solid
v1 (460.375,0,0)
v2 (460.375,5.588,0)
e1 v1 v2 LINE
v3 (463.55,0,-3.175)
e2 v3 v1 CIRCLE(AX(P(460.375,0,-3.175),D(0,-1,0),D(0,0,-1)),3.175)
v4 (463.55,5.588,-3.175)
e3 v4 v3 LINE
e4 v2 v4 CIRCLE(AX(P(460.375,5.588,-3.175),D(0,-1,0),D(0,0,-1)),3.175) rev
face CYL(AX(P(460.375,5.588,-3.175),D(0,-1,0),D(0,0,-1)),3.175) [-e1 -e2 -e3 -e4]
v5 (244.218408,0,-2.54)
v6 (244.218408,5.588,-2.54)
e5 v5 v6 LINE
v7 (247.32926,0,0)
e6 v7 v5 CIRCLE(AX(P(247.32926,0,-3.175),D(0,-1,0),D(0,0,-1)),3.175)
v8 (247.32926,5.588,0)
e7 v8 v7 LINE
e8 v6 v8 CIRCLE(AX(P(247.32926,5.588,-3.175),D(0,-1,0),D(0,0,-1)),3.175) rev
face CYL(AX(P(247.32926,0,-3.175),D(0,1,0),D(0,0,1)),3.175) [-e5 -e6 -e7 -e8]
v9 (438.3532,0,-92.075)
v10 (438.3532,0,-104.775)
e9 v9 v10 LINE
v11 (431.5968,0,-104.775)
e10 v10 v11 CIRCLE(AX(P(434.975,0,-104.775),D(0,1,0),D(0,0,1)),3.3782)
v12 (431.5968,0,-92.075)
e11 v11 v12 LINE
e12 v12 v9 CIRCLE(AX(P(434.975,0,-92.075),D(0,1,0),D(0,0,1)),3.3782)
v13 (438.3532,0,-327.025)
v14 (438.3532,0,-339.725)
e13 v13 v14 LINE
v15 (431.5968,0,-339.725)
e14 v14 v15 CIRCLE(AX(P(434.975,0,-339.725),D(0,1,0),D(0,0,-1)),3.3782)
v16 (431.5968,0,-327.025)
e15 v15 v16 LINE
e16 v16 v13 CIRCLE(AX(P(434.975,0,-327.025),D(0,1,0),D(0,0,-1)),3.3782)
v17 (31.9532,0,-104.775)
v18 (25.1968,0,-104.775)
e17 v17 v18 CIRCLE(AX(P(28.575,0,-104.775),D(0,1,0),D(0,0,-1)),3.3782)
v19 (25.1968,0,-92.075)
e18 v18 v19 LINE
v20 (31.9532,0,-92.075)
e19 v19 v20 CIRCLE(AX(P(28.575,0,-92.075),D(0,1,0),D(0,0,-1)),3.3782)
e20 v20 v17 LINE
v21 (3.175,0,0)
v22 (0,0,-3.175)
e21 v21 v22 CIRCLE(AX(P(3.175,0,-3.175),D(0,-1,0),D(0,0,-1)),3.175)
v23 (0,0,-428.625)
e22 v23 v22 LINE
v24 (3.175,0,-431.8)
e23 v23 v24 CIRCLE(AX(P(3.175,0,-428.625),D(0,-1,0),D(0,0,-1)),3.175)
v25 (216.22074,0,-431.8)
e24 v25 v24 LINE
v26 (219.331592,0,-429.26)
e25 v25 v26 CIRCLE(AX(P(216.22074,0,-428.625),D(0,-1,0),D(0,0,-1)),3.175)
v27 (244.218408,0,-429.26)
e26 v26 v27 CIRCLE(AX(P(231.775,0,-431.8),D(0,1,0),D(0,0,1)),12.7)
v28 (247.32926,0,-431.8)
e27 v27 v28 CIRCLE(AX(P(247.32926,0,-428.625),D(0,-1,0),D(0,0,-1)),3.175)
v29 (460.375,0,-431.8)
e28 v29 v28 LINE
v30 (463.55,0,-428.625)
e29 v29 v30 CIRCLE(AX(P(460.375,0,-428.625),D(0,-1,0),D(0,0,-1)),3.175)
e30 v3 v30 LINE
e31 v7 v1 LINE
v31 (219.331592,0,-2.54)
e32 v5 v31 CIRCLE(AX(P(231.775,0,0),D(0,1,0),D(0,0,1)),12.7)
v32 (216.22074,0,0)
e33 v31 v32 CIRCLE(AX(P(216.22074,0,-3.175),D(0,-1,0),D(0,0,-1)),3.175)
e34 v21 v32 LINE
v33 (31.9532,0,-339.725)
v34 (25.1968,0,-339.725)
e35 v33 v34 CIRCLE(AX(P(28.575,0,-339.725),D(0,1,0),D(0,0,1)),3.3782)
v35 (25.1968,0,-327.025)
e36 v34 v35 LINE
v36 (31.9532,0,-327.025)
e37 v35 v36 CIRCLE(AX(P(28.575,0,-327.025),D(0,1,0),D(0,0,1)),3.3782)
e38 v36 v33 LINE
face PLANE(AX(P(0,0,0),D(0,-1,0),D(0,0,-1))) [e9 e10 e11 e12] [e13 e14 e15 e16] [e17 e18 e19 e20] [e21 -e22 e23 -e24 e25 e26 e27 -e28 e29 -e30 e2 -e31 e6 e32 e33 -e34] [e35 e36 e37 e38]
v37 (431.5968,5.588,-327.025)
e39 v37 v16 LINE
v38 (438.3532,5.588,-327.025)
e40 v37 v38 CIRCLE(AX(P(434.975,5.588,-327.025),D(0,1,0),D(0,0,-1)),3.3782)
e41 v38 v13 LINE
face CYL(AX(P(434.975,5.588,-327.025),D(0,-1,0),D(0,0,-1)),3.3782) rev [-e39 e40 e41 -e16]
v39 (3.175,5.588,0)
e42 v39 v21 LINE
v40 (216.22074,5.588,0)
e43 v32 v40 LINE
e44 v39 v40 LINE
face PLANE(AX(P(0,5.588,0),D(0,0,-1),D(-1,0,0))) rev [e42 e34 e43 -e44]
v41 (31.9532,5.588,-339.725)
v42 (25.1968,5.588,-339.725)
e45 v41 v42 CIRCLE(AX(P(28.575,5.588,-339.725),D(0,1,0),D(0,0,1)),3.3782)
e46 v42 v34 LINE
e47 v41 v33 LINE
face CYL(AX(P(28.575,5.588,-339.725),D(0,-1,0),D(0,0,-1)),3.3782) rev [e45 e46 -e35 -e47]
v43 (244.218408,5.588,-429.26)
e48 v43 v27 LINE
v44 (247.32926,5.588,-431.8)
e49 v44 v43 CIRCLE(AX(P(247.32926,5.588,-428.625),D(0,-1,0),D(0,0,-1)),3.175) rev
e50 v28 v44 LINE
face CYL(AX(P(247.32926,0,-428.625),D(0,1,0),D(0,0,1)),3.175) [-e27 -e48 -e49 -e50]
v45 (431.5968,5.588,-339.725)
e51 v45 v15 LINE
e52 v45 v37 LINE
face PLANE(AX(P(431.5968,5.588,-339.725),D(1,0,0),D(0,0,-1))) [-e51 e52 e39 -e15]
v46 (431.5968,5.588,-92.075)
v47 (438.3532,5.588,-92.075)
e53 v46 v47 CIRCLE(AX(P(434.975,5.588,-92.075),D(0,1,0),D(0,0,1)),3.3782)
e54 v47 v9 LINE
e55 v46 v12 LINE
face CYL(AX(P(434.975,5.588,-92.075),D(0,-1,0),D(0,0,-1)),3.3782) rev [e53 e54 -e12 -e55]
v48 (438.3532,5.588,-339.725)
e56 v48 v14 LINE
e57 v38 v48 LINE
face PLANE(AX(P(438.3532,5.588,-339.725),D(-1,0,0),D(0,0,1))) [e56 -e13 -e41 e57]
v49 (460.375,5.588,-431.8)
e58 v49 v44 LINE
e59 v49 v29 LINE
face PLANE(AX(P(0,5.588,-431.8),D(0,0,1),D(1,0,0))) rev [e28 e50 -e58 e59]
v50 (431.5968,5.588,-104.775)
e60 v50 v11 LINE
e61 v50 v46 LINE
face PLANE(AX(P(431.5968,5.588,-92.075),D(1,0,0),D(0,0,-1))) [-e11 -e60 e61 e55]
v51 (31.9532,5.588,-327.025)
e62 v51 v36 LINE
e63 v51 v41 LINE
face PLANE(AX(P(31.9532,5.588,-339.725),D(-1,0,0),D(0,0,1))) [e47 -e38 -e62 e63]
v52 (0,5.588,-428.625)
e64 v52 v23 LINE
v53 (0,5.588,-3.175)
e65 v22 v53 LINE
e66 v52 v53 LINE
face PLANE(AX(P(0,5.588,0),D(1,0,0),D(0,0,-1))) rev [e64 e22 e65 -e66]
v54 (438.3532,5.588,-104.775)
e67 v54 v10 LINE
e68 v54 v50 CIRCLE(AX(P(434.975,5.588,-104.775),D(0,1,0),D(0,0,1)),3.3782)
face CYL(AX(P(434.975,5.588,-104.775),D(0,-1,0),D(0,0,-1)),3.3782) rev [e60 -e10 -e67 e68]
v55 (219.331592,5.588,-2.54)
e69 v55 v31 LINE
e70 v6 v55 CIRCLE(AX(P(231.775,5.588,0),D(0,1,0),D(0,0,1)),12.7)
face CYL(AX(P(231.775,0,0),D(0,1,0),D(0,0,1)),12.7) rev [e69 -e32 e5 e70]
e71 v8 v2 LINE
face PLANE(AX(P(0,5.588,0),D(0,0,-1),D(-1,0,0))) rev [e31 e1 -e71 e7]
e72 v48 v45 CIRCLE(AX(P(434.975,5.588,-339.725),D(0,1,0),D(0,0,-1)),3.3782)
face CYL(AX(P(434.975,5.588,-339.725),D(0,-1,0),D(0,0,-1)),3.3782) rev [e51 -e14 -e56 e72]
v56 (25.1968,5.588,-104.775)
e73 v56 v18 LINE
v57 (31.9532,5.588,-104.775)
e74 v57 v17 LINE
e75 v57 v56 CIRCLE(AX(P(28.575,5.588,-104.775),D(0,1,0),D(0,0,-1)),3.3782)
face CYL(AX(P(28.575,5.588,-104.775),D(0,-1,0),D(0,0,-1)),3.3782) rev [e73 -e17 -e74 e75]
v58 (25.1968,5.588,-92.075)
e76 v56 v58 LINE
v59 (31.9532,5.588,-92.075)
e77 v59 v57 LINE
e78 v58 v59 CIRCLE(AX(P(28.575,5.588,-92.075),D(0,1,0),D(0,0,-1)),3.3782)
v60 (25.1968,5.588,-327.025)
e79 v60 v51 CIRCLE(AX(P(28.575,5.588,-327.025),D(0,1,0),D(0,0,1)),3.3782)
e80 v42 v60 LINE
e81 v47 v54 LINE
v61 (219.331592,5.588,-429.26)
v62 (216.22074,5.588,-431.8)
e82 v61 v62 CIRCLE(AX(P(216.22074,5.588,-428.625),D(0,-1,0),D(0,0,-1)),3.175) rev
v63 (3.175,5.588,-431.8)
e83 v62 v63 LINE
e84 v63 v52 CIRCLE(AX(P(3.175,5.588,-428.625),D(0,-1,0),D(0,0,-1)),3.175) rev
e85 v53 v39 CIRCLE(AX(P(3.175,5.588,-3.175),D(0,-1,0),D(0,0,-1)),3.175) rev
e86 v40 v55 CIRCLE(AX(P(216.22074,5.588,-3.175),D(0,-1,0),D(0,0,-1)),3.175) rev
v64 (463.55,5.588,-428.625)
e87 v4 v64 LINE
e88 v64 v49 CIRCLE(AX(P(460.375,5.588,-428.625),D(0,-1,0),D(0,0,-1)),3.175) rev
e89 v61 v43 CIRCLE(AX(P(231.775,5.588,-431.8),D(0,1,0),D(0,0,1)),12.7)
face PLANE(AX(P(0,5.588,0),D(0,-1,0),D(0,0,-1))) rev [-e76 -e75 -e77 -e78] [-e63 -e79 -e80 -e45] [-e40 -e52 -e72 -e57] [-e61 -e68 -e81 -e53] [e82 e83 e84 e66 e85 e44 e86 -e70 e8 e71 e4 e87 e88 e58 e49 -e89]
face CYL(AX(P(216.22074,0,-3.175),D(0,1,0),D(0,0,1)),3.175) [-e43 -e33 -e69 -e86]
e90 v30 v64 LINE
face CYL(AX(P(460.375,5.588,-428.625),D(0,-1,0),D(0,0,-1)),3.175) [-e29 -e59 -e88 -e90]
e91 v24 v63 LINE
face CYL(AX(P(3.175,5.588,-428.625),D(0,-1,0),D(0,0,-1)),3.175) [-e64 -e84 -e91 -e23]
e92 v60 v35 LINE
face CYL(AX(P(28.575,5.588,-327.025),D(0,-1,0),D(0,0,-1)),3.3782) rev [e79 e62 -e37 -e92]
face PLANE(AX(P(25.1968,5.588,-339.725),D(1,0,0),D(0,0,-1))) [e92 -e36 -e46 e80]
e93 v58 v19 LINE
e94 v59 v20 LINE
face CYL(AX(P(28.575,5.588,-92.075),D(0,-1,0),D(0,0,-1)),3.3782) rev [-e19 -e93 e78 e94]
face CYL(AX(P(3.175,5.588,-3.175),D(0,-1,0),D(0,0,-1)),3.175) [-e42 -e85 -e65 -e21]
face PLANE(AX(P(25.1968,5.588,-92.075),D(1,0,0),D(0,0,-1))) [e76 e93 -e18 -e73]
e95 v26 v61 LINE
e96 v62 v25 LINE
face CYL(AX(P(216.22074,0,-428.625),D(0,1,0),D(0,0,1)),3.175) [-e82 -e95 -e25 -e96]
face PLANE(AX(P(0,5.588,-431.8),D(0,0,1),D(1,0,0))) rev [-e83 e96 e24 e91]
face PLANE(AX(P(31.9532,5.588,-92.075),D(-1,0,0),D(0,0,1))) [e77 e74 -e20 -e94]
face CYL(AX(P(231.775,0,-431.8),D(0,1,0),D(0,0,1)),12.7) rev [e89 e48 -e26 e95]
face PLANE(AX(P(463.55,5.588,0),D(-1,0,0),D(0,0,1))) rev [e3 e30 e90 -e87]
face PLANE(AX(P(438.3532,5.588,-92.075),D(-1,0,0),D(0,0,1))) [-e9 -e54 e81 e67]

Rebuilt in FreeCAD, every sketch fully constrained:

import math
import FreeCAD as App
import Part
import Sketcher
from FreeCAD import Vector
Q = App.Units.Quantity


def edges_at(feature, points):
    """Names of the edges that pass closest to the given points."""
    edges = feature.Shape.Edges
    near = lambda p: min(range(len(edges)), key=lambda i: edges[i].distToShape(Part.Vertex(*p))[0])
    return sorted({f"Edge{near(p) + 1}" for p in points})


def add_polygon(sketch, points):
    """Adds a closed chain of lines whose ends are joined by coincident constraints."""
    first, n = sketch.GeometryCount, len(points)
    for a, b in zip(points, points[1:] + points[:1]):
        sketch.addGeometry(Part.LineSegment(App.Vector(*a, 0), App.Vector(*b, 0)), False)
    for i in range(n):
        sketch.addConstraint(Sketcher.Constraint("Coincident", first + i, 2, first + (i + 1) % n, 1))

doc = App.newDocument("Part")
body = doc.addObject("PartDesign::Body", "Body")

sketch1 = doc.addObject("Sketcher::SketchObject", "Sketch")
body.addObject(sketch1)
sketch1.AttachmentSupport = (doc.XZ_Plane, [""])
sketch1.MapMode = "FlatFace"
add_polygon(sketch1, [(0, -431.8), (0, 0), (463.6, 0), (463.6, -431.8)])
sketch1.addGeometry(Part.LineSegment(Vector(32, -104.8, 0), Vector(32, -92.1, 0)), False)
sketch1.addGeometry(Part.ArcOfCircle(Part.Circle(Vector(28.6, -92.1, 0), Vector(0, 0, 1), 3.4), math.radians(0), math.radians(180)), False)
sketch1.addGeometry(Part.LineSegment(Vector(25.2, -92.1, 0), Vector(25.2, -104.8, 0)), False)
sketch1.addGeometry(Part.ArcOfCircle(Part.Circle(Vector(28.6, -104.8, 0), Vector(0, 0, 1), 3.4), math.radians(180), math.radians(360)), False)
sketch1.addGeometry(Part.ArcOfCircle(Part.Circle(Vector(435, -92.1, 0), Vector(0, 0, 1), 3.4), math.radians(0), math.radians(180)), False)
sketch1.addGeometry(Part.LineSegment(Vector(431.6, -92.1, 0), Vector(431.6, -104.8, 0)), False)
sketch1.addGeometry(Part.ArcOfCircle(Part.Circle(Vector(435, -104.8, 0), Vector(0, 0, 1), 3.4), math.radians(180), math.radians(360)), False)
sketch1.addGeometry(Part.LineSegment(Vector(438.4, -104.8, 0), Vector(438.4, -92.1, 0)), False)
sketch1.addGeometry(Part.ArcOfCircle(Part.Circle(Vector(28.6, -339.7, 0), Vector(0, 0, 1), 3.4), math.radians(180), math.radians(360)), False)
sketch1.addGeometry(Part.LineSegment(Vector(32, -339.7, 0), Vector(32, -327, 0)), False)
sketch1.addGeometry(Part.ArcOfCircle(Part.Circle(Vector(28.6, -327, 0), Vector(0, 0, 1), 3.4), math.radians(0), math.radians(180)), False)
sketch1.addGeometry(Part.LineSegment(Vector(25.2, -327, 0), Vector(25.2, -339.7, 0)), False)
sketch1.addGeometry(Part.LineSegment(Vector(431.6, -327, 0), Vector(431.6, -339.7, 0)), False)
sketch1.addGeometry(Part.ArcOfCircle(Part.Circle(Vector(435, -339.7, 0), Vector(0, 0, 1), 3.4), math.radians(180), math.radians(360)), False)
sketch1.addGeometry(Part.LineSegment(Vector(438.4, -339.7, 0), Vector(438.4, -327, 0)), False)
sketch1.addGeometry(Part.ArcOfCircle(Part.Circle(Vector(435, -327, 0), Vector(0, 0, 1), 3.4), math.radians(0), math.radians(180)), False)
sketch1.addConstraint([
    Sketcher.Constraint("Tangent", 4, 2, 5, 1),
    Sketcher.Constraint("Tangent", 5, 2, 6, 1),
    Sketcher.Constraint("Tangent", 6, 2, 7, 1),
    Sketcher.Constraint("Tangent", 7, 2, 4, 1),
    Sketcher.Constraint("Tangent", 8, 2, 9, 1),
    Sketcher.Constraint("Tangent", 9, 2, 10, 1),
    Sketcher.Constraint("Tangent", 10, 2, 11, 1),
    Sketcher.Constraint("Tangent", 11, 2, 8, 1),
    Sketcher.Constraint("Tangent", 12, 2, 13, 1),
    Sketcher.Constraint("Tangent", 13, 2, 14, 1),
    Sketcher.Constraint("Tangent", 14, 2, 15, 1),
    Sketcher.Constraint("Tangent", 15, 2, 12, 1),
    Sketcher.Constraint("Tangent", 16, 2, 17, 1),
    Sketcher.Constraint("Tangent", 17, 2, 18, 1),
    Sketcher.Constraint("Tangent", 18, 2, 19, 1),
    Sketcher.Constraint("Tangent", 19, 2, 16, 1),
    Sketcher.Constraint("Vertical", 0),
    Sketcher.Constraint("Horizontal", 1),
    Sketcher.Constraint("Vertical", 2),
    Sketcher.Constraint("Horizontal", 3),
    Sketcher.Constraint("Vertical", 4),
    Sketcher.Constraint("Vertical", 6),
    Sketcher.Constraint("Vertical", 9),
    Sketcher.Constraint("Vertical", 11),
    Sketcher.Constraint("Vertical", 13),
    Sketcher.Constraint("Vertical", 15),
    Sketcher.Constraint("Vertical", 16),
    Sketcher.Constraint("Vertical", 18),
    Sketcher.Constraint("Coincident", 0, 2, -1, 1),
    Sketcher.Constraint("Equal", 7, 8),
    Sketcher.Constraint("Equal", 10, 12),
    Sketcher.Constraint("Equal", 14, 17),
    Sketcher.Constraint("Horizontal", 5, 3, 8, 3),
    Sketcher.Constraint("Horizontal", 7, 3, 10, 3),
    Sketcher.Constraint("Horizontal", 12, 3, 17, 3),
    Sketcher.Constraint("Horizontal", 14, 3, 19, 3),
    Sketcher.Constraint("Vertical", 7, 3, 12, 3),
    Sketcher.Constraint("Vertical", 10, 3, 17, 3),
    Sketcher.Constraint("Equal", 11, 13),
    Sketcher.Constraint("DistanceY", 0, 1, 0, 2, Q("17 in")),
    Sketcher.Constraint("DistanceY", 4, 1, 4, 2, Q("0.5 in")),
    Sketcher.Constraint("Radius", 5, Q("0.133 in")),
    Sketcher.Constraint("DistanceX", 5, 3, 8, 3, Q("16 in")),
    Sketcher.Constraint("DistanceX", 1, 1, 1, 2, Q("18.25 in")),
    Sketcher.Constraint("DistanceY", 12, 3, 7, 3, Q("9.25 in")),
    Sketcher.Constraint("DistanceX", -1, 1, 5, 3, Q("1.125 in")),
    Sketcher.Constraint("DistanceY", 5, 3, -1, 1, Q("3.625 in")),
])
pad1 = doc.addObject("PartDesign::Pad", "Pad")
body.addObject(pad1)
pad1.Profile = sketch1
pad1.Length = Q("0.22 in")
pad1.Reversed = True
doc.recompute()

fillet = doc.addObject("PartDesign::Fillet", "Fillet")
body.addObject(fillet)
fillet.Base = (pad1, edges_at(pad1, [
    (0, 2.794, -431.8),
    (463.55, 2.794, -431.8),
    (463.55, 2.794, 0),
    (0, 2.794, 0),
]))
fillet.Radius = Q("0.125 in")

sketch2 = doc.addObject("Sketcher::SketchObject", "Sketch001")
body.addObject(sketch2)
sketch2.AttachmentSupport = (doc.XZ_Plane, [""])
sketch2.MapMode = "FlatFace"
sketch2.AttachmentOffset = App.Placement(Vector(0, 0, -0.22 * 25.4), App.Rotation())
sketch2.addGeometry([
    Part.Circle(Vector(232, -432, 0), Vector(0, 0, 1), 13),
    Part.Circle(Vector(232, 0, 0), Vector(0, 0, 1), 13),
], False)
sketch2.addConstraint([
    Sketcher.Constraint("Equal", 0, 1),
    Sketcher.Constraint("PointOnObject", 1, 3, -1),
    Sketcher.Constraint("Vertical", 0, 3, 1, 3),
    Sketcher.Constraint("Diameter", 0, Q("1 in")),
    Sketcher.Constraint("DistanceY", 0, 3, -1, 1, Q("17 in")),
    Sketcher.Constraint("DistanceX", -1, 1, 0, 3, Q("9.125 in")),
])
pocket1 = doc.addObject("PartDesign::Pocket", "Pocket")
body.addObject(pocket1)
pocket1.Profile = sketch2
pocket1.Type = "ThroughAll"
pocket1.Reversed = True
doc.recompute()

fillet2 = doc.addObject("PartDesign::Fillet", "Fillet001")
body.addObject(fillet2)
fillet2.Base = (pocket1, edges_at(pocket1, [
    (244.475, 2.794, 0),
    (219.075, 2.794, 0),
    (219.075, 2.794, -431.8),
    (244.475, 2.794, -431.8),
]))
fillet2.Radius = Q("0.125 in")

doc.recompute()
